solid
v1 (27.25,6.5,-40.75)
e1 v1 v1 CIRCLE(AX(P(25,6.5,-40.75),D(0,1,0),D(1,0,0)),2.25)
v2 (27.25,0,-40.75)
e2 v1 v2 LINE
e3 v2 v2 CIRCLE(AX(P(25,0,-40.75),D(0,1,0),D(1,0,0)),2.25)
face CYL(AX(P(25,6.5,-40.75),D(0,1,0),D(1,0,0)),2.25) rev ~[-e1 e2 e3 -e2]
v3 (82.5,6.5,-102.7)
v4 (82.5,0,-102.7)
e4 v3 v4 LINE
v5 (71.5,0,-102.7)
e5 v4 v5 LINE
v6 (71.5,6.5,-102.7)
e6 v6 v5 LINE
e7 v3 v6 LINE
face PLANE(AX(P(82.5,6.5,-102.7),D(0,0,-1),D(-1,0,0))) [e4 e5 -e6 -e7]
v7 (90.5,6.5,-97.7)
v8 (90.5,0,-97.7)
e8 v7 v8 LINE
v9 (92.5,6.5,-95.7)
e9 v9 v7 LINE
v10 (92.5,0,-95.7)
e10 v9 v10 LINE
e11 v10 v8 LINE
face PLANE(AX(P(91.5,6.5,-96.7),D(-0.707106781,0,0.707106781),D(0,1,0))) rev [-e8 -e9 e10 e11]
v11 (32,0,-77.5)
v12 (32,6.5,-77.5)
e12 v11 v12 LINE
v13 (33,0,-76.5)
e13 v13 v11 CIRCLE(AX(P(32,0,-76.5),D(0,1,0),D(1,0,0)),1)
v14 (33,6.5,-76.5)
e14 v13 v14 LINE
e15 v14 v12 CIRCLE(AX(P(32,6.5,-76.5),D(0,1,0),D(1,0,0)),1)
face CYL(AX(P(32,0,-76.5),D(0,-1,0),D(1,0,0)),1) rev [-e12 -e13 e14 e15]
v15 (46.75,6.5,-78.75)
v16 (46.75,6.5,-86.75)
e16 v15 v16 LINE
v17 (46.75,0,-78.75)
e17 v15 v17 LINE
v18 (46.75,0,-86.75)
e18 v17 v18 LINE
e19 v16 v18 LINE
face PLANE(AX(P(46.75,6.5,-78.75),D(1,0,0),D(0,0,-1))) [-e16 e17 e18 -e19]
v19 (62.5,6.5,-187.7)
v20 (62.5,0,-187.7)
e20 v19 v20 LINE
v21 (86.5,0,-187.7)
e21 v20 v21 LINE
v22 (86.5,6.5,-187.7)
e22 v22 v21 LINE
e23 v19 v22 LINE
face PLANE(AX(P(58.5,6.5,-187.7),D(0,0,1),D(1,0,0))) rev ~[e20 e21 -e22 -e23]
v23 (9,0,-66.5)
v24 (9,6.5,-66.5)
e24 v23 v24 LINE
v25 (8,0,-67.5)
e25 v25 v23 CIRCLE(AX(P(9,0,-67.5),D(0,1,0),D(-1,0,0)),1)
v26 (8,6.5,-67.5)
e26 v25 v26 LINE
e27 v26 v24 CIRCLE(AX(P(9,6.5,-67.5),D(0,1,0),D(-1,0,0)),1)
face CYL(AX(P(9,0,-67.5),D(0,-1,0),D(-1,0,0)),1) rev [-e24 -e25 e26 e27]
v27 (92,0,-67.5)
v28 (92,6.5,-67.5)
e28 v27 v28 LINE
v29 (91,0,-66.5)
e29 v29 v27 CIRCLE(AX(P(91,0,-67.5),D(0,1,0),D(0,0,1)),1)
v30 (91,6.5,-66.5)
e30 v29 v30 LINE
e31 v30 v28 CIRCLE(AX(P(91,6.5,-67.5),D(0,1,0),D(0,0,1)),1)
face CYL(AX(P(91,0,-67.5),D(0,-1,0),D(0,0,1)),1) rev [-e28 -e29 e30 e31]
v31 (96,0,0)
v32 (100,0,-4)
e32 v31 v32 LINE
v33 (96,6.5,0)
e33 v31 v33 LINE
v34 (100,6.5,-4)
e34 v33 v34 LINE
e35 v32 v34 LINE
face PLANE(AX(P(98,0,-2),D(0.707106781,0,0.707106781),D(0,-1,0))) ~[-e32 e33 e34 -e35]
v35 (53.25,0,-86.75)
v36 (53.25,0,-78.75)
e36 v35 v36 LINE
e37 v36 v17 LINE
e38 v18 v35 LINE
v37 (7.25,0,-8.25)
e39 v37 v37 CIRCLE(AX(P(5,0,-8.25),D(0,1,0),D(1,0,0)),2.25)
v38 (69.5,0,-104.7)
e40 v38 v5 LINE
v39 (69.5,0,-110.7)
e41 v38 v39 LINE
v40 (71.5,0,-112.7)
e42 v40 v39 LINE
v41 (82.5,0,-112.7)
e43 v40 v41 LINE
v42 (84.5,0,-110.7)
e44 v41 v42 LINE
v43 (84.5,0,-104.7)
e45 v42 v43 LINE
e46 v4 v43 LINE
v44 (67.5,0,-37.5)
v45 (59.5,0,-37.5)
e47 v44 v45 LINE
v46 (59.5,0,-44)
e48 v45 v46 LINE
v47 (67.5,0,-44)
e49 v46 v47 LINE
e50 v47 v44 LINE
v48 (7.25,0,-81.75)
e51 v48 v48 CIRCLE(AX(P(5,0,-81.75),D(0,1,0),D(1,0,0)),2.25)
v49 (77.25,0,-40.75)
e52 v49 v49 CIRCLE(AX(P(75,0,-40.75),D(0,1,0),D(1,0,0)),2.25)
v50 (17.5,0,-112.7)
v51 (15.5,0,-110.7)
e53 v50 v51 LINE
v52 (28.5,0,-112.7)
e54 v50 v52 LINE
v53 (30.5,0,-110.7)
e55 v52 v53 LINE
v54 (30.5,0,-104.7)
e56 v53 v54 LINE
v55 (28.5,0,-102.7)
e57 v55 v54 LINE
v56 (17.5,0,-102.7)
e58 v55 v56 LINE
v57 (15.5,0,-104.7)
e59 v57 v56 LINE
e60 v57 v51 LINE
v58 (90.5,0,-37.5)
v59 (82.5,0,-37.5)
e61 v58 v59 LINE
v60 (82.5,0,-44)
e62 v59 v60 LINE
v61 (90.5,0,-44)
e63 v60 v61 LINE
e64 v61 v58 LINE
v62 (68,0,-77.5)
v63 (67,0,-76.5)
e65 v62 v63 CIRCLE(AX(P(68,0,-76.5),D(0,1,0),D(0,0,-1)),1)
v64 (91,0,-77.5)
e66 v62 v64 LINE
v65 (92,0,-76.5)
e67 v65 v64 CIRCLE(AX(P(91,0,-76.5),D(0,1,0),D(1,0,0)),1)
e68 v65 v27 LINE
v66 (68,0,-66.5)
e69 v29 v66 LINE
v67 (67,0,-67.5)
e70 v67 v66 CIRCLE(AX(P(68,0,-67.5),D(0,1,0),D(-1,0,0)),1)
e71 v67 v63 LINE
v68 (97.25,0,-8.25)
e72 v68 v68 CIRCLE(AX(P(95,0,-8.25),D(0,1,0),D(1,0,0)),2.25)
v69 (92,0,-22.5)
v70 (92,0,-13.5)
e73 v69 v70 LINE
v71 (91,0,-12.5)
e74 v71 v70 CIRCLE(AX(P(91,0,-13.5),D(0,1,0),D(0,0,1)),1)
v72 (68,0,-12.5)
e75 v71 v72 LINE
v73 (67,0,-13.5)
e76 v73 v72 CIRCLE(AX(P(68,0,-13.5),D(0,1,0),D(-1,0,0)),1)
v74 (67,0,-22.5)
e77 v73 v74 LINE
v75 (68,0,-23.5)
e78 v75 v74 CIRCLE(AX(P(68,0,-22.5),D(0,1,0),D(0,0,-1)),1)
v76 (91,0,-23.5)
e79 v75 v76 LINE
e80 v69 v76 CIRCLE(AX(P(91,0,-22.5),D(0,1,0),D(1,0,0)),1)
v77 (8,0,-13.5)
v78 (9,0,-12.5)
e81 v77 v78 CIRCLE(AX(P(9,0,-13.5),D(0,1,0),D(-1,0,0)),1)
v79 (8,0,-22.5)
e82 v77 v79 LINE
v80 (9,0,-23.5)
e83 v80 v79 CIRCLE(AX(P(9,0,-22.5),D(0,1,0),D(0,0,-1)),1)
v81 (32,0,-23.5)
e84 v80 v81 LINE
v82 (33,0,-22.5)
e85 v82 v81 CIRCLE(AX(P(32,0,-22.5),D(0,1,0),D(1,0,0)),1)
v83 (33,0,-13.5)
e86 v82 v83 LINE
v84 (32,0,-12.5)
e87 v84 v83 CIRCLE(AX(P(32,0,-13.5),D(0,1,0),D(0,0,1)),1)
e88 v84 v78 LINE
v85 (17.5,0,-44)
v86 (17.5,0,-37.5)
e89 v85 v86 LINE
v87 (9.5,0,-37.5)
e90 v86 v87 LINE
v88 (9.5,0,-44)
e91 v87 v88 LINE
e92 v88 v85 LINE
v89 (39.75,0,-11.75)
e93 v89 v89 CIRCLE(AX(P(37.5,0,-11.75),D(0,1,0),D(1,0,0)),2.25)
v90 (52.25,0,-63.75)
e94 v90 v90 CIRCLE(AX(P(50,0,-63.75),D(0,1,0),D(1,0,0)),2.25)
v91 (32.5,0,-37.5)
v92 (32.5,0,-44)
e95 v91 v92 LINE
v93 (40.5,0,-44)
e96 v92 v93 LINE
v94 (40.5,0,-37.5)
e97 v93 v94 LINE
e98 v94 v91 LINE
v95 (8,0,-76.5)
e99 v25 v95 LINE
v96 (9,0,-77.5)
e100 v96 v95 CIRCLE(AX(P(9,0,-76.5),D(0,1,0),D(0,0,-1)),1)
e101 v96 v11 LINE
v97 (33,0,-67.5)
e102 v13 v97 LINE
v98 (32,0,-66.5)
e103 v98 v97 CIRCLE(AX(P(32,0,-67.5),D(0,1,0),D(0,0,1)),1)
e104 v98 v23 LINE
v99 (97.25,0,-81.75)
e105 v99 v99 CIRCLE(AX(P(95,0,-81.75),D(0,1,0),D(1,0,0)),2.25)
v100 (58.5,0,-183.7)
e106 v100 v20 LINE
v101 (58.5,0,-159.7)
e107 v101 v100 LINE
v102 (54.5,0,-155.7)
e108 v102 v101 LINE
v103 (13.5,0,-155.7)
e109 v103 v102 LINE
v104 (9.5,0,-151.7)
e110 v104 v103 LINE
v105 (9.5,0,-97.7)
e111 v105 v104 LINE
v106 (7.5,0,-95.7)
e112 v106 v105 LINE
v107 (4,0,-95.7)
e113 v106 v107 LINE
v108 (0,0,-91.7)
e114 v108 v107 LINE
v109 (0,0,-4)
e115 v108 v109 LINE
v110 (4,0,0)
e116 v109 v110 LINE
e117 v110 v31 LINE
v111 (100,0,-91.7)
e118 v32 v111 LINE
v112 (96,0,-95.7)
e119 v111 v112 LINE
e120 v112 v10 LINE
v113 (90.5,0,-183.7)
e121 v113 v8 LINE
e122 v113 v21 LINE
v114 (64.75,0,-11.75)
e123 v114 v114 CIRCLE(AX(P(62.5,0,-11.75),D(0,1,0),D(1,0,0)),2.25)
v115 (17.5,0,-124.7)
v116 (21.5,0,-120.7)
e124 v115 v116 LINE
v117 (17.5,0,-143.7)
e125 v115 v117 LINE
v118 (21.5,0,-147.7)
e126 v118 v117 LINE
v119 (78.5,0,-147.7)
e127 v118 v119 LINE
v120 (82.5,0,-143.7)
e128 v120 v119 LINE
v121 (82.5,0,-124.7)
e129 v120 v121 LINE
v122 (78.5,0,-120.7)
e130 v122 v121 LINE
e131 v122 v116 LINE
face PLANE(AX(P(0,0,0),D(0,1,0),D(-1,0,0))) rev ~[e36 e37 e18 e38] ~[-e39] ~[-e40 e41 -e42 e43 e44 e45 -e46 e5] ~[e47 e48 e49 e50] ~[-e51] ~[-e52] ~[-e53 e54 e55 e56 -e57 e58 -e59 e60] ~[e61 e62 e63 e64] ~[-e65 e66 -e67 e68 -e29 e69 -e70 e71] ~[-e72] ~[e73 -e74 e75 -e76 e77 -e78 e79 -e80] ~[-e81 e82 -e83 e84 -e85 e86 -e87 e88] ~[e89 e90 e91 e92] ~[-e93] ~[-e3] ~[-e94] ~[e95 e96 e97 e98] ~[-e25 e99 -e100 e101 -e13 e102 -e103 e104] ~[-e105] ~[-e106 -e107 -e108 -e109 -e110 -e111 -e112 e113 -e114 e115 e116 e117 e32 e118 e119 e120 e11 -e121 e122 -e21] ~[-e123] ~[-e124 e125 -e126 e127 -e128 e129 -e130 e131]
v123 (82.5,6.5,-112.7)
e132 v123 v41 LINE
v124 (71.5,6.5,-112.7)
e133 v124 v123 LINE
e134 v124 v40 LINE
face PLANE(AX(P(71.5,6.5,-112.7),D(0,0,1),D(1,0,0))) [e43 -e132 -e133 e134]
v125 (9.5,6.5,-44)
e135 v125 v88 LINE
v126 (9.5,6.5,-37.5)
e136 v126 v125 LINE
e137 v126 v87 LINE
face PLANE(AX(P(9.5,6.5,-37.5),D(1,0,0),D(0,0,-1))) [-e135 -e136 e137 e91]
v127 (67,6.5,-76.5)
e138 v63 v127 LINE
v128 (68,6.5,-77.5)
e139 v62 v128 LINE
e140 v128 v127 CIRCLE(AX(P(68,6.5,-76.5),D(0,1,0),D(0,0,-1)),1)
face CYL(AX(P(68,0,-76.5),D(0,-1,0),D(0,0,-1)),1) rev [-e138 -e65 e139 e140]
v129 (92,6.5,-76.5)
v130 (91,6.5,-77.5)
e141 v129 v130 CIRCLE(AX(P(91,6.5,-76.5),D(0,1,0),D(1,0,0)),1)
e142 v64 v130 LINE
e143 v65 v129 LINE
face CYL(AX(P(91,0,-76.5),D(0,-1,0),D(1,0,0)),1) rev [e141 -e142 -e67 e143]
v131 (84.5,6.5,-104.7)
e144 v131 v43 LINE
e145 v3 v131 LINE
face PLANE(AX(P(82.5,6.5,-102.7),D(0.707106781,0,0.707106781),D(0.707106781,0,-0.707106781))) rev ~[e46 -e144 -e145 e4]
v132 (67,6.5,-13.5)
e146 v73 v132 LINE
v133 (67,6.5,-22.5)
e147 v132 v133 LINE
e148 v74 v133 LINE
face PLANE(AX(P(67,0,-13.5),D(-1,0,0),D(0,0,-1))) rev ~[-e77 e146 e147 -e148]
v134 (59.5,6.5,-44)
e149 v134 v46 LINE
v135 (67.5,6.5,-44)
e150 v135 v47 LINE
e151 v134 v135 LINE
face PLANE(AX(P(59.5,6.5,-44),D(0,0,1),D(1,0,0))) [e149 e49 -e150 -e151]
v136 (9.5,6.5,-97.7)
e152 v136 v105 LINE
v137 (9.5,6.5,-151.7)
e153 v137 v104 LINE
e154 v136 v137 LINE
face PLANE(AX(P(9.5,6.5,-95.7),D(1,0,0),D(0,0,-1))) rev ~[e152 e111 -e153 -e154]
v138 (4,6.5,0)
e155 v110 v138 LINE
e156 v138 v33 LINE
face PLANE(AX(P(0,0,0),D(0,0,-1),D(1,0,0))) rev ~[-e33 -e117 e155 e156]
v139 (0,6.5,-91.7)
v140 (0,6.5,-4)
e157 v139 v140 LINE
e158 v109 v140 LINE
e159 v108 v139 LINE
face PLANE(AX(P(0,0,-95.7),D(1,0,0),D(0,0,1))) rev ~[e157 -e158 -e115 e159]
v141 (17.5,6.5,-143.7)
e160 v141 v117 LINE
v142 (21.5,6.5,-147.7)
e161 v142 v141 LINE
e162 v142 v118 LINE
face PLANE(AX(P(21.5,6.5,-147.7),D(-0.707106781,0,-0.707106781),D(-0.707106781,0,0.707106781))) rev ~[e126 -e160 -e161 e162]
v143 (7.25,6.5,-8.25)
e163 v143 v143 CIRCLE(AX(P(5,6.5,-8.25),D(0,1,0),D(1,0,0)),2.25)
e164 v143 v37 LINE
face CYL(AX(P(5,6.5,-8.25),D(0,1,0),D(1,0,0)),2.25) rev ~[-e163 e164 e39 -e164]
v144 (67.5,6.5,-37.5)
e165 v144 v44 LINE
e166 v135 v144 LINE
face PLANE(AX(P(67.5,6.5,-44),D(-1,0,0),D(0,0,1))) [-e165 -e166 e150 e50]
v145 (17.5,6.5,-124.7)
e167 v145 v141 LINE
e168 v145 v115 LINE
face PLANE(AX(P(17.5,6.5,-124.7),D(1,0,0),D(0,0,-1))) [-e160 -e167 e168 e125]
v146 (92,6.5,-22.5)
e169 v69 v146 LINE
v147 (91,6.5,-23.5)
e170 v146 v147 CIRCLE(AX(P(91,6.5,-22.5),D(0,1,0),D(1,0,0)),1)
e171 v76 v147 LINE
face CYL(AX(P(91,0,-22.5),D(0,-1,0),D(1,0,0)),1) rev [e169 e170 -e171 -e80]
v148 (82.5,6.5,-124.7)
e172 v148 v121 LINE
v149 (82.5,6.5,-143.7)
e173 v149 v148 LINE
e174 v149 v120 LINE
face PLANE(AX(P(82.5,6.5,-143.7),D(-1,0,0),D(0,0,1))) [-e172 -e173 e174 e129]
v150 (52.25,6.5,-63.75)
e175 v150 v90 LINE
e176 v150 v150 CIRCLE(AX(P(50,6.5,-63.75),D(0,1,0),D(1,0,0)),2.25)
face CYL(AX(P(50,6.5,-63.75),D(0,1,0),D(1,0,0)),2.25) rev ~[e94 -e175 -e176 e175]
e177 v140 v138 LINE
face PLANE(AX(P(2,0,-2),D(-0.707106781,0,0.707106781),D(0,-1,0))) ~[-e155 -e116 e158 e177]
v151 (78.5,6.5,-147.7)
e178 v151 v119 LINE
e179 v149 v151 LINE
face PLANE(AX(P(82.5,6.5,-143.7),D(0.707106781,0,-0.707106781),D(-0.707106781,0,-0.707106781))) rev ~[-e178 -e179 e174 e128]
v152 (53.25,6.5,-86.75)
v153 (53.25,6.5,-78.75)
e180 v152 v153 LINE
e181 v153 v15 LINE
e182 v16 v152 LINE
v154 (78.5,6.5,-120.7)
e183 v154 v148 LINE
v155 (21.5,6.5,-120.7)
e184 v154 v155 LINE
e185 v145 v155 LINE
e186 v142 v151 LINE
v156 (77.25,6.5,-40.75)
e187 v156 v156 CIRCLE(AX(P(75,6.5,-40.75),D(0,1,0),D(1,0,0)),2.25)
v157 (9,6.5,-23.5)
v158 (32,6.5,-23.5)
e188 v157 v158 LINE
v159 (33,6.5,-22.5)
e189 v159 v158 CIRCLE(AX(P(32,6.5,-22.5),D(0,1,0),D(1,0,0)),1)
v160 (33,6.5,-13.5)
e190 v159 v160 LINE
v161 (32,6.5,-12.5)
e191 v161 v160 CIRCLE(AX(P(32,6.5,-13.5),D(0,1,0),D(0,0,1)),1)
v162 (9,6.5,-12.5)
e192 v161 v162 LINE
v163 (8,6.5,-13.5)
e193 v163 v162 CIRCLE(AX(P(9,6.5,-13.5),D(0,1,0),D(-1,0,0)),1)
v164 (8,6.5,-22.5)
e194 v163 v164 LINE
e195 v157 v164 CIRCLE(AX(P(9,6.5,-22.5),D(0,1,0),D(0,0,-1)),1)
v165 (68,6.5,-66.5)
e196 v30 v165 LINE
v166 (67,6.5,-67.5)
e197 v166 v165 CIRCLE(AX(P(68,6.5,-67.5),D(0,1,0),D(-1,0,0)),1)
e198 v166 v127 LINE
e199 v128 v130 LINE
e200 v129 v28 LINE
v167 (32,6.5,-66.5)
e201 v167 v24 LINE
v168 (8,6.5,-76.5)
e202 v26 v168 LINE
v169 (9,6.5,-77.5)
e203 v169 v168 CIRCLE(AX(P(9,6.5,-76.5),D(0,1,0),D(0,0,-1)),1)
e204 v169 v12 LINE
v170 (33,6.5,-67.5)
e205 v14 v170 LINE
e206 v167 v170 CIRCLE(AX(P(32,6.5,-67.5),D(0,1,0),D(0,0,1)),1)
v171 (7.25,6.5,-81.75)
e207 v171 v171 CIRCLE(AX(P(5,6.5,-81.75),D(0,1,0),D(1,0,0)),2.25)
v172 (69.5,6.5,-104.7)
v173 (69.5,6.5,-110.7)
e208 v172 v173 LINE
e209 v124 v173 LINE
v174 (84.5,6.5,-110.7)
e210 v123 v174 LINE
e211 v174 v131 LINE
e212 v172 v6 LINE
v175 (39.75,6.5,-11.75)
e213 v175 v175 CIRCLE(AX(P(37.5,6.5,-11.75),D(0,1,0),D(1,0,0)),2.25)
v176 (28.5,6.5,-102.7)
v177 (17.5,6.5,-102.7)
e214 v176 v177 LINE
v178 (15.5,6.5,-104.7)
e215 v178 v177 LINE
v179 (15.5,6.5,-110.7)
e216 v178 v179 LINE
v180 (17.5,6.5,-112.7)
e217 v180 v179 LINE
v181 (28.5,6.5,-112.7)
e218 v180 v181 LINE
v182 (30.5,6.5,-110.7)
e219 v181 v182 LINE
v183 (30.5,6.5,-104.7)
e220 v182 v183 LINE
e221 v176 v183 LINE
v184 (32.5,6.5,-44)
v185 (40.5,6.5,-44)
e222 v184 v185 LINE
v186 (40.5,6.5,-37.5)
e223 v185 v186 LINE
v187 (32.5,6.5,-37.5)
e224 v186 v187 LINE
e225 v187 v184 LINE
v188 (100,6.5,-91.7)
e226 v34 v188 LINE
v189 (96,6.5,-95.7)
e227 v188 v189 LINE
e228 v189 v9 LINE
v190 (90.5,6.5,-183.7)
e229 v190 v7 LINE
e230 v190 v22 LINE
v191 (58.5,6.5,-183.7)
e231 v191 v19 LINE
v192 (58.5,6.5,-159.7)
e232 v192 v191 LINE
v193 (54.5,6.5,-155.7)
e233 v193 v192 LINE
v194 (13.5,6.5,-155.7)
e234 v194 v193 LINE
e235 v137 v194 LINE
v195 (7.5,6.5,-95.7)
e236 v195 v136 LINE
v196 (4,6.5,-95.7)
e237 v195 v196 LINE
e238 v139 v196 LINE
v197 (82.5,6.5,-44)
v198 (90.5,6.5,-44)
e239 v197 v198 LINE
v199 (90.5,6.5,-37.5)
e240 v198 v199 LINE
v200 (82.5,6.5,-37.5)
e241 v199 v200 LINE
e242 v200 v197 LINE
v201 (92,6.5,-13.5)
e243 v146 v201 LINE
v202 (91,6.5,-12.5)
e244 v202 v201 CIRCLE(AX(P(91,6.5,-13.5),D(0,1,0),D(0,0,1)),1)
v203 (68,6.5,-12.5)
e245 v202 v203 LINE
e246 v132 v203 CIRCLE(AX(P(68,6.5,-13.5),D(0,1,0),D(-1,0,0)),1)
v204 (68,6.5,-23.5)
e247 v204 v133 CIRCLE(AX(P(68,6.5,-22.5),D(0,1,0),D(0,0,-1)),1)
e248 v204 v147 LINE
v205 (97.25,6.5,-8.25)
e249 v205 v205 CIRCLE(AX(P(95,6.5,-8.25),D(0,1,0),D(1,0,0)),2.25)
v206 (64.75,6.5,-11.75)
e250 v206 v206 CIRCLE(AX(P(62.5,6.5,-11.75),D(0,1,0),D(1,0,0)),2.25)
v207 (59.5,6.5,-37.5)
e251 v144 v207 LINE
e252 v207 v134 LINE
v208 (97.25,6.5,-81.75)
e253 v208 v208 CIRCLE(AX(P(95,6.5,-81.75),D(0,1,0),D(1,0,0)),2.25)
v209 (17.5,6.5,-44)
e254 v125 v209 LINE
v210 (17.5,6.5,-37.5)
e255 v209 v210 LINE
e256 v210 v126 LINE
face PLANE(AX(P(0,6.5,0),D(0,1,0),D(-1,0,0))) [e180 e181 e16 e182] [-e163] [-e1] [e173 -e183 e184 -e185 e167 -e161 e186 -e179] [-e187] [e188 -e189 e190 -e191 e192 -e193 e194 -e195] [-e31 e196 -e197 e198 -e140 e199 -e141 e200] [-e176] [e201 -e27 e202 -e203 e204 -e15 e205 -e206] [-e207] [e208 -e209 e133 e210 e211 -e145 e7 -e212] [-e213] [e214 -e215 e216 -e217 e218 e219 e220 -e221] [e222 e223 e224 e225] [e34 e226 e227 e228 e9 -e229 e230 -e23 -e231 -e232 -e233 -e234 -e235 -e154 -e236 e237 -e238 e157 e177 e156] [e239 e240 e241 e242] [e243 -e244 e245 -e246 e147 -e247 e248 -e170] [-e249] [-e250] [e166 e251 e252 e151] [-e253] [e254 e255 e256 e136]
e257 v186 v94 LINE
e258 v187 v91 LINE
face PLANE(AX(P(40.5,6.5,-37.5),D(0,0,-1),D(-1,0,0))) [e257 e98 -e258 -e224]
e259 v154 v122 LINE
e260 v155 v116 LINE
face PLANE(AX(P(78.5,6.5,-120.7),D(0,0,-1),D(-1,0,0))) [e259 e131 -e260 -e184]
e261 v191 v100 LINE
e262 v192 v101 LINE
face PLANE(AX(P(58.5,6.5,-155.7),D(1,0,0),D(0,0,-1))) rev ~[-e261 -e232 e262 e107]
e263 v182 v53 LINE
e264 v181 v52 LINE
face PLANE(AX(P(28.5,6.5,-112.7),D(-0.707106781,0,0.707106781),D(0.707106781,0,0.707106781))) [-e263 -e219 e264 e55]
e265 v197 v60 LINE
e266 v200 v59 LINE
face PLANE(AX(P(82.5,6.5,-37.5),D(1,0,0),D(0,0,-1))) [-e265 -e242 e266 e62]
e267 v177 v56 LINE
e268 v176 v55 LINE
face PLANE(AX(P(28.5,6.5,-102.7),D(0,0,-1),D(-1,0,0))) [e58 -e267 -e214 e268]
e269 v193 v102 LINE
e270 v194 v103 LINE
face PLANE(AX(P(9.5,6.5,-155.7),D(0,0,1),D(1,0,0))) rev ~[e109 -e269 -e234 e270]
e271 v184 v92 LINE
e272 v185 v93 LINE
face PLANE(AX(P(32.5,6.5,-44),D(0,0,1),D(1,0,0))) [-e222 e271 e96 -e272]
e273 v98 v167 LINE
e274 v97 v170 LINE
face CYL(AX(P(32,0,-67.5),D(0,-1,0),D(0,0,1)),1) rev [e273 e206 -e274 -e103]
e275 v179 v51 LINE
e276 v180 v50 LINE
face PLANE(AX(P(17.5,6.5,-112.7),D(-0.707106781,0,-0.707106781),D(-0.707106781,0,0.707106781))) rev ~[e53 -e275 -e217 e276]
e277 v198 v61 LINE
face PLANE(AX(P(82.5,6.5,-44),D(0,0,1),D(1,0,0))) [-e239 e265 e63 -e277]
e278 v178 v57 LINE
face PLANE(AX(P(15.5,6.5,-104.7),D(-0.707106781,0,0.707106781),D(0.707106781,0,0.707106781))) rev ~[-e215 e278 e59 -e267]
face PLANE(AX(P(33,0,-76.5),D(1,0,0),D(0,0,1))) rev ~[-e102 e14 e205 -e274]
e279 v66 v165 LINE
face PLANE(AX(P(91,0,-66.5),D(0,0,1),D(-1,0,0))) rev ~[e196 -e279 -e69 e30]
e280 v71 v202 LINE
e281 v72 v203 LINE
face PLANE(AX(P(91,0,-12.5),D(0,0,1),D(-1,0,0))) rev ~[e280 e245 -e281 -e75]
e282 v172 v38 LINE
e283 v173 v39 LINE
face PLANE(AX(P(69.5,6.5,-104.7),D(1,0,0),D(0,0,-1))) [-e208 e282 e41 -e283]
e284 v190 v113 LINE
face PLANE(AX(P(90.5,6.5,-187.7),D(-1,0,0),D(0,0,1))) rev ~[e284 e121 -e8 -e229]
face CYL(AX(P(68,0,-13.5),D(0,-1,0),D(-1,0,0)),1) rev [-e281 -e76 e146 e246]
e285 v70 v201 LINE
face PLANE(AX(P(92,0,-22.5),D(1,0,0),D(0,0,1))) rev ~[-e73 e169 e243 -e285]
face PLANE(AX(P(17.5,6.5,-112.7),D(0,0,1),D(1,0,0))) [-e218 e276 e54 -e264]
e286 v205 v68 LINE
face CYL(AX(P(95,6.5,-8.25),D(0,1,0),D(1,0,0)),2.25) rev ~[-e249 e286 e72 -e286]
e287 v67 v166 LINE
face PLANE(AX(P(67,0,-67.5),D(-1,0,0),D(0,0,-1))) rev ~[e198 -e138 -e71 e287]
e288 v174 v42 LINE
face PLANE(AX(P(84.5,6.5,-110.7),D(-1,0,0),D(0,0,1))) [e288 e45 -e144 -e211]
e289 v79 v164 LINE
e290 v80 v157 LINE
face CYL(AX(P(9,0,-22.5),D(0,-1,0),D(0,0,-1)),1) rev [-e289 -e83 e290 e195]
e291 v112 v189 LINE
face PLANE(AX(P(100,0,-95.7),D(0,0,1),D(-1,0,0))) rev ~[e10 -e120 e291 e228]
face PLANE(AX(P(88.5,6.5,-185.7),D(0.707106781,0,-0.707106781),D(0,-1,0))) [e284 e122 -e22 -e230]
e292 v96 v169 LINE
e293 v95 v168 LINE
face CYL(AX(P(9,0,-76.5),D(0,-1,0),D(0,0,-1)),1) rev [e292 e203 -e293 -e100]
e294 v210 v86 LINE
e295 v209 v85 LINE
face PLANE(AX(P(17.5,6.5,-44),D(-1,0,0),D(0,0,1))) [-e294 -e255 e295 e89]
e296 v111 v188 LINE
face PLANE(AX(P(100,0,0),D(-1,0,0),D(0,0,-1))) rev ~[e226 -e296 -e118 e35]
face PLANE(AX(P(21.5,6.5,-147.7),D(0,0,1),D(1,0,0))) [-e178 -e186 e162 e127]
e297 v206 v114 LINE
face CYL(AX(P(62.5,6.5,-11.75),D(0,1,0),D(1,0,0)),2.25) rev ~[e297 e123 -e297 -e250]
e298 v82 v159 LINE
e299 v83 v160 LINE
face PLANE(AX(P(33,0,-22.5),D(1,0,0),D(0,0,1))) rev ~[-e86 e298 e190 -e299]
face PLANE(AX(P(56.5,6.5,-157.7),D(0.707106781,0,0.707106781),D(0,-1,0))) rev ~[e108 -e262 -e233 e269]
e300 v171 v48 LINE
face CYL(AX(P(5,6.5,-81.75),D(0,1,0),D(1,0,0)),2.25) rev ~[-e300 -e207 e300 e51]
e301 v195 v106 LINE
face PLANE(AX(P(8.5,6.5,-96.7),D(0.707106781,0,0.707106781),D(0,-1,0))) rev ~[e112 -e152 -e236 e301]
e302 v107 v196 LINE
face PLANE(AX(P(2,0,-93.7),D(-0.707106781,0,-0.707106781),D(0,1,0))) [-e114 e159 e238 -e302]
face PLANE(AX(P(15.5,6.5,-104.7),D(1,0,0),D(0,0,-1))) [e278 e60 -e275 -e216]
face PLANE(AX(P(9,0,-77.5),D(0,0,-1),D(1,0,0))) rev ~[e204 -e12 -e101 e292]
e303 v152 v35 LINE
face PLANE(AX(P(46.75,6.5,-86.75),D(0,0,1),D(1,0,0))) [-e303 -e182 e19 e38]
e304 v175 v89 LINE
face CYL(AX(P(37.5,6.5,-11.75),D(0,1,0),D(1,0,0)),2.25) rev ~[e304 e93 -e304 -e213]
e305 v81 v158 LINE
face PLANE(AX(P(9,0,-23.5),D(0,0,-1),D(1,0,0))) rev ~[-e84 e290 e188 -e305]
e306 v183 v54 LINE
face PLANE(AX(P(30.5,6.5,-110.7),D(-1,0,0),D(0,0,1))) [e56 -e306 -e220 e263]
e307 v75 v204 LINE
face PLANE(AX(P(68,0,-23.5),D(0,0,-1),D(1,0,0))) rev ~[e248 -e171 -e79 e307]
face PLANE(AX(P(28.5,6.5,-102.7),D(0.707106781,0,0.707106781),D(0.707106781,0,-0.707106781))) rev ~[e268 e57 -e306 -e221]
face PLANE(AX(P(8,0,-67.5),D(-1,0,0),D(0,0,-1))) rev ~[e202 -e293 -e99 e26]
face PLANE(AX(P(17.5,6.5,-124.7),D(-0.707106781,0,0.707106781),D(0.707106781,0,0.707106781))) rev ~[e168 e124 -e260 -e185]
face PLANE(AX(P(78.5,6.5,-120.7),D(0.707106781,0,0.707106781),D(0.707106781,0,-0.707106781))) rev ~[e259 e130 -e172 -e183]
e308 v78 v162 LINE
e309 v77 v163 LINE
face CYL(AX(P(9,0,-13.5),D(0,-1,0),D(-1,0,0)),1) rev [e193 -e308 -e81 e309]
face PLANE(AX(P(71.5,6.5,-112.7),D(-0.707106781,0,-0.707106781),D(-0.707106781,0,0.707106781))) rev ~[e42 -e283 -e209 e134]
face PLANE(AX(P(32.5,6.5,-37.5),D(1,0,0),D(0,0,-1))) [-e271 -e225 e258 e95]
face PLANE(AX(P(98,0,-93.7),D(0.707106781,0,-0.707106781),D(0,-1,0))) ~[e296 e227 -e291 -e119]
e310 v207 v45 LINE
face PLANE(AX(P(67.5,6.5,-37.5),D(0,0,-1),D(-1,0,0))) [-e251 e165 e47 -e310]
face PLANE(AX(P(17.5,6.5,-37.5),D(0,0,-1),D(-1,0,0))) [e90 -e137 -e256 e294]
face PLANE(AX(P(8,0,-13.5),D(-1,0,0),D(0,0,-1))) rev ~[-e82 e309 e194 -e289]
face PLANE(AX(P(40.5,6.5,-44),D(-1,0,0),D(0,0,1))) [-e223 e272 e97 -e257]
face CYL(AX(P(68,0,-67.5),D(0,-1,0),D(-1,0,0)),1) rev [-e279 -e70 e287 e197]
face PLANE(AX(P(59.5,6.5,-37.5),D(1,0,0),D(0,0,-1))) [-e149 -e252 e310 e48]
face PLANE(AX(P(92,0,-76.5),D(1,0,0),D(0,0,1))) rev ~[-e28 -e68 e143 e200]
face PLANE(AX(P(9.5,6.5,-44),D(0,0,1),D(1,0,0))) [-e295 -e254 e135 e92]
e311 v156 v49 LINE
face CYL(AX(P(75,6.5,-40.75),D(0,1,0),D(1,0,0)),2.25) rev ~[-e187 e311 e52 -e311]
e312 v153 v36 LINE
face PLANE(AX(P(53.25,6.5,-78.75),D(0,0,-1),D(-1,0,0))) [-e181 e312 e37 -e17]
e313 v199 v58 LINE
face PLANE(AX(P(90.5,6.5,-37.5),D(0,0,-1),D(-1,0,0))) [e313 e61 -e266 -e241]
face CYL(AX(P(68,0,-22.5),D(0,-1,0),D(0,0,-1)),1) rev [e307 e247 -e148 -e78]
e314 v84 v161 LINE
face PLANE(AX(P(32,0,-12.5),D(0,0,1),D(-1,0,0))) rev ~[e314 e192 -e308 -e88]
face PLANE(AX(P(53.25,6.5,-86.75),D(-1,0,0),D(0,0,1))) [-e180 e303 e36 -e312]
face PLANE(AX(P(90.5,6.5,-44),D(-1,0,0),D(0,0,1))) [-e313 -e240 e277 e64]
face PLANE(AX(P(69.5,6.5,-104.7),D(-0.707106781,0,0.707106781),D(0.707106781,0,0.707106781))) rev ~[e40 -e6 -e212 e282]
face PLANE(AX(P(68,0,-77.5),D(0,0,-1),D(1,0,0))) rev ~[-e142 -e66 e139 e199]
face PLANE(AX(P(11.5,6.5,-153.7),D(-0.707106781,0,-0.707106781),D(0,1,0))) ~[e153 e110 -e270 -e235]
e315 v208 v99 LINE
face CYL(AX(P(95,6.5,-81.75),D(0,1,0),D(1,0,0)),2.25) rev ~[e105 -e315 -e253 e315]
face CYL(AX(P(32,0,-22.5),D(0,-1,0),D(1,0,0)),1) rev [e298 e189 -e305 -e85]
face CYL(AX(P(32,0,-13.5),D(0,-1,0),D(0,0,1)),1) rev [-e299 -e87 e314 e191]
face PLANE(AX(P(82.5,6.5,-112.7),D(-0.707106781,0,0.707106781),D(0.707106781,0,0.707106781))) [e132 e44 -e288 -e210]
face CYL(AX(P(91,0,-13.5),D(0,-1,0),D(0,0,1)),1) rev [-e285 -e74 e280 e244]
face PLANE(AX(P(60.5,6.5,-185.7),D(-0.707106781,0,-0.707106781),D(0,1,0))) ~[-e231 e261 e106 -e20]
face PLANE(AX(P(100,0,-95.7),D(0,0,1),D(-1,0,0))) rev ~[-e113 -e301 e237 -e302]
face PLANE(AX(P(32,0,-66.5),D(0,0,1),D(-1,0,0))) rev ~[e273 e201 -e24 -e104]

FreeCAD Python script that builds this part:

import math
import FreeCAD as App
import Part
import Sketcher

V = App.Vector


def edges_at(feature, points):
    """Names of the edges that pass closest to the given points."""
    edges = feature.Shape.Edges
    near = lambda p: min(range(len(edges)), key=lambda i: edges[i].distToShape(Part.Vertex(*p))[0])
    return sorted({f"Edge{near(p) + 1}" for p in points})


def add_polygon(sketch, points):
    """Adds a closed chain of lines whose ends are joined by coincident constraints."""
    first, n = sketch.GeometryCount, len(points)
    for a, b in zip(points, points[1:] + points[:1]):
        sketch.addGeometry(Part.LineSegment(App.Vector(*a, 0), App.Vector(*b, 0)), False)
    for i in range(n):
        sketch.addConstraint(Sketcher.Constraint("Coincident", first + i, 2, first + (i + 1) % n, 1))

doc = App.newDocument("Part")
params = doc.addObject("Spreadsheet::Sheet", "Params")
for row, (alias, value) in enumerate([
    ("sketch1_radius", "1 mm"),
    ("sketch1_width", "100 mm"),
    ("sketch1_height", "95.7 mm"),
    ("sketch1_width2", "23 mm"),
    ("pad1_length", "6.5 mm"),
    ("sketch2_diameter", "4.5 mm"),
    ("sketch2_width", "8 mm"),
    ("sketch2_height", "6.5 mm"),
    ("sketch3_width", "32 mm"),
    ("sketch3_height", "92 mm"),
    ("sketch3_width2", "81 mm"),
    ("pad2_length", "6.5 mm"),
    ("sketch4_height", "6 mm"),
    ("sketch5_width", "57 mm"),
    ("sketch5_height", "19 mm"),
    ("chamfer_size", "4 mm"),
    ("chamfer2_size", "2 mm"),
    ("sketch6_diameter", "4.5 mm"),
    ("sketch7_diameter", "4.5 mm"),
    ("sketch8_diameter", "4.5 mm"),
    ("sketch8_height", "8 mm"),
    ("sketch8_width", "6.5 mm"),
], start=1):
    params.set(f"A{row}", alias)
    params.set(f"B{row}", "=" + value)
    params.setAlias(f"B{row}", alias)

body = doc.addObject("PartDesign::Body", "Body")

sketch1 = doc.addObject("Sketcher::SketchObject", "Sketch")
body.addObject(sketch1)
sketch1.AttachmentSupport = (doc.XZ_Plane, [""])
sketch1.MapMode = "FlatFace"
add_polygon(sketch1, [(0, -95.7), (0, 0), (100, 0), (100, -95.7)])
sketch1.addGeometry(Part.ArcOfCircle(Part.Circle(V(68, -76.5, 0), V(0, 0, 1), 1), math.radians(180), math.radians(270)), False)
sketch1.addGeometry(Part.LineSegment(V(68, -77.5, 0), V(91, -77.5, 0)), False)
sketch1.addGeometry(Part.ArcOfCircle(Part.Circle(V(91, -76.5, 0), V(0, 0, 1), 1), math.radians(-90), math.radians(0)), False)
sketch1.addGeometry(Part.LineSegment(V(92, -76.5, 0), V(92, -67.5, 0)), False)
sketch1.addGeometry(Part.ArcOfCircle(Part.Circle(V(91, -67.5, 0), V(0, 0, 1), 1), math.radians(0), math.radians(90)), False)
sketch1.addGeometry(Part.LineSegment(V(91, -66.5, 0), V(68, -66.5, 0)), False)
sketch1.addGeometry(Part.ArcOfCircle(Part.Circle(V(68, -67.5, 0), V(0, 0, 1), 1), math.radians(90), math.radians(180)), False)
sketch1.addGeometry(Part.LineSegment(V(67, -67.5, 0), V(67, -76.5, 0)), False)
sketch1.addGeometry(Part.ArcOfCircle(Part.Circle(V(9, -76.5, 0), V(0, 0, 1), 1), math.radians(180), math.radians(270)), False)
sketch1.addGeometry(Part.LineSegment(V(9, -77.5, 0), V(32, -77.5, 0)), False)
sketch1.addGeometry(Part.ArcOfCircle(Part.Circle(V(32, -76.5, 0), V(0, 0, 1), 1), math.radians(-90), math.radians(0)), False)
sketch1.addGeometry(Part.LineSegment(V(33, -76.5, 0), V(33, -67.5, 0)), False)
sketch1.addGeometry(Part.ArcOfCircle(Part.Circle(V(32, -67.5, 0), V(0, 0, 1), 1), math.radians(0), math.radians(90)), False)
sketch1.addGeometry(Part.LineSegment(V(32, -66.5, 0), V(9, -66.5, 0)), False)
sketch1.addGeometry(Part.ArcOfCircle(Part.Circle(V(9, -67.5, 0), V(0, 0, 1), 1), math.radians(90), math.radians(180)), False)
sketch1.addGeometry(Part.LineSegment(V(8, -67.5, 0), V(8, -76.5, 0)), False)
sketch1.addGeometry(Part.ArcOfCircle(Part.Circle(V(68, -22.5, 0), V(0, 0, 1), 1), math.radians(180), math.radians(270)), False)
sketch1.addGeometry(Part.LineSegment(V(68, -23.5, 0), V(91, -23.5, 0)), False)
sketch1.addGeometry(Part.ArcOfCircle(Part.Circle(V(91, -22.5, 0), V(0, 0, 1), 1), math.radians(-90), math.radians(0)), False)
sketch1.addGeometry(Part.LineSegment(V(92, -22.5, 0), V(92, -13.5, 0)), False)
sketch1.addGeometry(Part.ArcOfCircle(Part.Circle(V(91, -13.5, 0), V(0, 0, 1), 1), math.radians(0), math.radians(90)), False)
sketch1.addGeometry(Part.LineSegment(V(91, -12.5, 0), V(68, -12.5, 0)), False)
sketch1.addGeometry(Part.ArcOfCircle(Part.Circle(V(68, -13.5, 0), V(0, 0, 1), 1), math.radians(90), math.radians(180)), False)
sketch1.addGeometry(Part.LineSegment(V(67, -13.5, 0), V(67, -22.5, 0)), False)
sketch1.addGeometry(Part.ArcOfCircle(Part.Circle(V(9, -22.5, 0), V(0, 0, 1), 1), math.radians(180), math.radians(270)), False)
sketch1.addGeometry(Part.LineSegment(V(9, -23.5, 0), V(32, -23.5, 0)), False)
sketch1.addGeometry(Part.ArcOfCircle(Part.Circle(V(32, -22.5, 0), V(0, 0, 1), 1), math.radians(-90), math.radians(0)), False)
sketch1.addGeometry(Part.LineSegment(V(33, -22.5, 0), V(33, -13.5, 0)), False)
sketch1.addGeometry(Part.ArcOfCircle(Part.Circle(V(32, -13.5, 0), V(0, 0, 1), 1), math.radians(0), math.radians(90)), False)
sketch1.addGeometry(Part.LineSegment(V(32, -12.5, 0), V(9, -12.5, 0)), False)
sketch1.addGeometry(Part.ArcOfCircle(Part.Circle(V(9, -13.5, 0), V(0, 0, 1), 1), math.radians(90), math.radians(180)), False)
sketch1.addGeometry(Part.LineSegment(V(8, -13.5, 0), V(8, -22.5, 0)), False)
sketch1.addConstraint([
    Sketcher.Constraint("Tangent", 4, 2, 5, 1),
    Sketcher.Constraint("Tangent", 5, 2, 6, 1),
    Sketcher.Constraint("Tangent", 6, 2, 7, 1),
    Sketcher.Constraint("Tangent", 7, 2, 8, 1),
    Sketcher.Constraint("Tangent", 8, 2, 9, 1),
    Sketcher.Constraint("Tangent", 9, 2, 10, 1),
    Sketcher.Constraint("Tangent", 10, 2, 11, 1),
    Sketcher.Constraint("Tangent", 11, 2, 4, 1),
    Sketcher.Constraint("Tangent", 12, 2, 13, 1),
    Sketcher.Constraint("Tangent", 13, 2, 14, 1),
    Sketcher.Constraint("Tangent", 14, 2, 15, 1),
    Sketcher.Constraint("Tangent", 15, 2, 16, 1),
    Sketcher.Constraint("Tangent", 16, 2, 17, 1),
    Sketcher.Constraint("Tangent", 17, 2, 18, 1),
    Sketcher.Constraint("Tangent", 18, 2, 19, 1),
    Sketcher.Constraint("Tangent", 19, 2, 12, 1),
    Sketcher.Constraint("Tangent", 20, 2, 21, 1),
    Sketcher.Constraint("Tangent", 21, 2, 22, 1),
    Sketcher.Constraint("Tangent", 22, 2, 23, 1),
    Sketcher.Constraint("Tangent", 23, 2, 24, 1),
    Sketcher.Constraint("Tangent", 24, 2, 25, 1),
    Sketcher.Constraint("Tangent", 25, 2, 26, 1),
    Sketcher.Constraint("Tangent", 26, 2, 27, 1),
    Sketcher.Constraint("Tangent", 27, 2, 20, 1),
    Sketcher.Constraint("Tangent", 28, 2, 29, 1),
    Sketcher.Constraint("Tangent", 29, 2, 30, 1),
    Sketcher.Constraint("Tangent", 30, 2, 31, 1),
    Sketcher.Constraint("Tangent", 31, 2, 32, 1),
    Sketcher.Constraint("Tangent", 32, 2, 33, 1),
    Sketcher.Constraint("Tangent", 33, 2, 34, 1),
    Sketcher.Constraint("Tangent", 34, 2, 35, 1),
    Sketcher.Constraint("Tangent", 35, 2, 28, 1),
    Sketcher.Constraint("Vertical", 0),
    Sketcher.Constraint("Horizontal", 1),
    Sketcher.Constraint("Vertical", 2),
    Sketcher.Constraint("Horizontal", 3),
    Sketcher.Constraint("Horizontal", 5),
    Sketcher.Constraint("Vertical", 7),
    Sketcher.Constraint("Horizontal", 9),
    Sketcher.Constraint("Vertical", 11),
    Sketcher.Constraint("Horizontal", 13),
    Sketcher.Constraint("Vertical", 15),
    Sketcher.Constraint("Horizontal", 17),
    Sketcher.Constraint("Vertical", 19),
    Sketcher.Constraint("Horizontal", 21),
    Sketcher.Constraint("Vertical", 23),
    Sketcher.Constraint("Horizontal", 25),
    Sketcher.Constraint("Vertical", 27),
    Sketcher.Constraint("Horizontal", 29),
    Sketcher.Constraint("Vertical", 31),
    Sketcher.Constraint("Horizontal", 33),
    Sketcher.Constraint("Vertical", 35),
    Sketcher.Constraint("Coincident", 0, 2, -1, 1),
    Sketcher.Constraint("Equal", 4, 6),
    Sketcher.Constraint("Equal", 6, 8),
    Sketcher.Constraint("Equal", 8, 10),
    Sketcher.Constraint("Equal", 10, 12),
    Sketcher.Constraint("Equal", 12, 14),
    Sketcher.Constraint("Equal", 14, 16),
    Sketcher.Constraint("Equal", 16, 18),
    Sketcher.Constraint("Equal", 18, 20),
    Sketcher.Constraint("Equal", 20, 22),
    Sketcher.Constraint("Equal", 22, 24),
    Sketcher.Constraint("Equal", 24, 26),
    Sketcher.Constraint("Equal", 26, 28),
    Sketcher.Constraint("Equal", 28, 30),
    Sketcher.Constraint("Equal", 30, 32),
    Sketcher.Constraint("Equal", 32, 34),
    Sketcher.Constraint("Horizontal", 6, 3, 12, 3),
    Sketcher.Constraint("Horizontal", 10, 3, 16, 3),
    Sketcher.Constraint("Horizontal", 22, 3, 28, 3),
    Sketcher.Constraint("Horizontal", 26, 3, 32, 3),
    Sketcher.Constraint("Vertical", 10, 3, 20, 3),
    Sketcher.Constraint("Vertical", 8, 3, 22, 3),
    Sketcher.Constraint("Vertical", 18, 3, 28, 3),
    Sketcher.Constraint("Vertical", 16, 3, 30, 3),
    Sketcher.Constraint("Equal", 9, 13),
    Sketcher.Constraint("Equal", 19, 23),
    Sketcher.Constraint("Radius", 4, 1.0),
    Sketcher.Constraint("DistanceX", 1, 1, 1, 2, 100.0),
    Sketcher.Constraint("DistanceY", 0, 1, 0, 2, 95.7),
    Sketcher.Constraint("DistanceX", -1, 1, 18, 2, 8.0),
    Sketcher.Constraint("DistanceY", 4, 3, 20, 3, 54.0),
    Sketcher.Constraint("DistanceX", 6, 2, 2, 2, 8.0),
    Sketcher.Constraint("DistanceY", 5, 2, 8, 2, 11.0),
    Sketcher.Constraint("DistanceX", 5, 1, 5, 2, 23.0),
    Sketcher.Constraint("DistanceY", 4, 3, -1, 1, 76.5),
])
sketch1.setExpression("Constraints[82]", "Params.sketch1_radius")
sketch1.setExpression("Constraints[83]", "Params.sketch1_width")
sketch1.setExpression("Constraints[84]", "Params.sketch1_height")
sketch1.setExpression("Constraints[89]", "Params.sketch1_width2")
pad1 = doc.addObject("PartDesign::Pad", "Pad")
body.addObject(pad1)
pad1.Profile = sketch1
pad1.setExpression("Length", "Params.pad1_length")
pad1.Reversed = True

sketch2 = doc.addObject("Sketcher::SketchObject", "Sketch001")
body.addObject(sketch2)
sketch2.AttachmentSupport = (doc.XZ_Plane, [""])
sketch2.MapMode = "FlatFace"
sketch2.AttachmentOffset = App.Placement(V(0, 0, -6.5), App.Rotation())
add_polygon(sketch2, [(17.5, -44), (9.5, -44), (9.5, -37.5), (17.5, -37.5)])
add_polygon(sketch2, [(40.5, -44), (32.5, -44), (32.5, -37.5), (40.5, -37.5)])
add_polygon(sketch2, [(67.5, -44), (59.5, -44), (59.5, -37.5), (67.5, -37.5)])
add_polygon(sketch2, [(90.5, -44), (82.5, -44), (82.5, -37.5), (90.5, -37.5)])
sketch2.addGeometry(Part.Circle(V(25, -40.8, 0), V(0, 0, 1), 2.2), False)
sketch2.addGeometry(Part.Circle(V(75, -40.8, 0), V(0, 0, 1), 2.2), False)
sketch2.addConstraint([
    Sketcher.Constraint("Horizontal", 0),
    Sketcher.Constraint("Vertical", 1),
    Sketcher.Constraint("Horizontal", 2),
    Sketcher.Constraint("Vertical", 3),
    Sketcher.Constraint("Horizontal", 4),
    Sketcher.Constraint("Vertical", 5),
    Sketcher.Constraint("Horizontal", 6),
    Sketcher.Constraint("Vertical", 7),
    Sketcher.Constraint("Horizontal", 8),
    Sketcher.Constraint("Vertical", 9),
    Sketcher.Constraint("Horizontal", 10),
    Sketcher.Constraint("Vertical", 11),
    Sketcher.Constraint("Horizontal", 12),
    Sketcher.Constraint("Vertical", 13),
    Sketcher.Constraint("Horizontal", 14),
    Sketcher.Constraint("Vertical", 15),
    Sketcher.Constraint("Equal", 16, 17),
    Sketcher.Constraint("Horizontal", 16, 3, 17, 3),
    Sketcher.Constraint("Horizontal", 3, 2, 4, 2),
    Sketcher.Constraint("Horizontal", 2, 2, 5, 2),
    Sketcher.Constraint("Horizontal", 7, 2, 8, 2),
    Sketcher.Constraint("Horizontal", 6, 2, 9, 2),
    Sketcher.Constraint("Horizontal", 11, 2, 12, 2),
    Sketcher.Constraint("Horizontal", 10, 2, 13, 2),
    Sketcher.Constraint("Equal", 2, 4),
    Sketcher.Constraint("Equal", 6, 8),
    Sketcher.Constraint("Equal", 10, 12),
    Sketcher.Constraint("Diameter", 16, 4.5),
    Sketcher.Constraint("DistanceX", 0, 2, 0, 1, 8.0),
    Sketcher.Constraint("DistanceY", 1, 1, 1, 2, 6.5),
    Sketcher.Constraint("DistanceX", 16, 3, 17, 3, 50.0),
    Sketcher.Constraint("DistanceX", 3, 2, 4, 2, 15.0),
    Sketcher.Constraint("DistanceX", 11, 2, 12, 2, 15.0),
    Sketcher.Constraint("DistanceY", 1, 2, -1, 1, 37.5),
    Sketcher.Constraint("DistanceX", -1, 1, 16, 3, 25.0),
    Sketcher.Constraint("DistanceX", 7, 2, 8, 2, 19.0),
    Sketcher.Constraint("DistanceX", -1, 1, 0, 2, 9.5),
    Sketcher.Constraint("DistanceY", 16, 3, -1, 1, 40.75),
])
sketch2.setExpression("Constraints[43]", "Params.sketch2_diameter")
sketch2.setExpression("Constraints[44]", "Params.sketch2_width")
sketch2.setExpression("Constraints[45]", "Params.sketch2_height")
pocket1 = doc.addObject("PartDesign::Pocket", "Pocket")
body.addObject(pocket1)
pocket1.Profile = sketch2
pocket1.Type = "ThroughAll"
pocket1.Reversed = True

sketch3 = doc.addObject("Sketcher::SketchObject", "Sketch002")
body.addObject(sketch3)
sketch3.AttachmentSupport = (doc.XZ_Plane, [""])
sketch3.MapMode = "FlatFace"
sketch3.AttachmentOffset = App.Placement(V(0, 0, -6.5), App.Rotation())
add_polygon(sketch3, [(10, -96), (90, -96), (90, -188), (58, -188), (58, -156), (10, -156)])
sketch3.addConstraint([
    Sketcher.Constraint("Horizontal", 0),
    Sketcher.Constraint("Vertical", 1),
    Sketcher.Constraint("Horizontal", 2),
    Sketcher.Constraint("Vertical", 3),
    Sketcher.Constraint("Horizontal", 4),
    Sketcher.Constraint("Vertical", 5),
    Sketcher.Constraint("Equal", 2, 3),
    Sketcher.Constraint("DistanceX", 2, 2, 2, 1, 32.0),
    Sketcher.Constraint("DistanceY", 1, 2, 1, 1, 92.0),
    Sketcher.Constraint("DistanceX", -1, 1, 4, 2, 9.5),
    Sketcher.Constraint("DistanceX", 0, 1, 0, 2, 81.0),
    Sketcher.Constraint("DistanceY", 0, 2, -1, 1, 95.7),
])
sketch3.setExpression("Constraints[13]", "Params.sketch3_width")
sketch3.setExpression("Constraints[14]", "Params.sketch3_height")
sketch3.setExpression("Constraints[16]", "Params.sketch3_width2")
pad2 = doc.addObject("PartDesign::Pad", "Pad001")
body.addObject(pad2)
pad2.Profile = sketch3
pad2.setExpression("Length", "Params.pad2_length")

sketch4 = doc.addObject("Sketcher::SketchObject", "Sketch003")
body.addObject(sketch4)
sketch4.AttachmentSupport = (doc.XZ_Plane, [""])
sketch4.MapMode = "FlatFace"
sketch4.AttachmentOffset = App.Placement(V(0, 0, -6.5), App.Rotation())
add_polygon(sketch4, [(28.5, -112.7), (17.5, -112.7), (15.5, -110.7), (15.5, -104.7), (17.5, -102.7), (28.5, -102.7), (30.5, -104.7), (30.5, -110.7)])
add_polygon(sketch4, [(82.5, -112.7), (71.5, -112.7), (69.5, -110.7), (69.5, -104.7), (71.5, -102.7), (82.5, -102.7), (84.5, -104.7), (84.5, -110.7)])
sketch4.addConstraint([
    Sketcher.Constraint("Horizontal", 0),
    Sketcher.Constraint("Vertical", 2),
    Sketcher.Constraint("Horizontal", 4),
    Sketcher.Constraint("Vertical", 6),
    Sketcher.Constraint("Horizontal", 8),
    Sketcher.Constraint("Vertical", 10),
    Sketcher.Constraint("Horizontal", 12),
    Sketcher.Constraint("Vertical", 14),
    Sketcher.Constraint("Perpendicular", 1, 3),
    Sketcher.Constraint("Perpendicular", 3, 5),
    Sketcher.Constraint("Perpendicular", 5, 7),
    Sketcher.Constraint("Perpendicular", 7, 9),
    Sketcher.Constraint("Perpendicular", 9, 11),
    Sketcher.Constraint("Perpendicular", 11, 13),
    Sketcher.Constraint("Perpendicular", 13, 15),
    Sketcher.Constraint("Horizontal", 2, 2, 5, 2),
    Sketcher.Constraint("Horizontal", 1, 2, 6, 2),
    Sketcher.Constraint("Horizontal", 7, 2, 8, 2),
    Sketcher.Constraint("Horizontal", 6, 2, 9, 2),
    Sketcher.Constraint("Horizontal", 5, 2, 10, 2),
    Sketcher.Constraint("Horizontal", 4, 2, 11, 2),
    Sketcher.Constraint("Horizontal", 10, 2, 13, 2),
    Sketcher.Constraint("Horizontal", 9, 2, 14, 2),
    Sketcher.Constraint("Vertical", 0, 2, 3, 2),
    Sketcher.Constraint("Vertical", 4, 2, 7, 2),
    Sketcher.Constraint("Equal", 4, 8),
    Sketcher.Constraint("DistanceY", 2, 1, 2, 2, 6.0),
    Sketcher.Constraint("DistanceX", 1, 2, 0, 2, 2.0),
    Sketcher.Constraint("DistanceX", 2, 2, 5, 2, 15.0),
    Sketcher.Constraint("DistanceX", 6, 2, 8, 2, 41.0),
    Sketcher.Constraint("DistanceX", -1, 1, 0, 2, 17.5),
    Sketcher.Constraint("DistanceY", 0, 2, -1, 1, 112.7),
])
sketch4.setExpression("Constraints[42]", "Params.sketch4_height")
pocket2 = doc.addObject("PartDesign::Pocket", "Pocket001")
body.addObject(pocket2)
pocket2.Profile = sketch4
pocket2.Type = "ThroughAll"
pocket2.Reversed = True

sketch5 = doc.addObject("Sketcher::SketchObject", "Sketch004")
body.addObject(sketch5)
sketch5.AttachmentSupport = (doc.XZ_Plane, [""])
sketch5.MapMode = "FlatFace"
sketch5.AttachmentOffset = App.Placement(V(0, 0, -6.5), App.Rotation())
add_polygon(sketch5, [(78, -148), (22, -148), (18, -144), (18, -125), (22, -121), (78, -121), (82, -125), (82, -144)])
sketch5.addConstraint([
    Sketcher.Constraint("Horizontal", 0),
    Sketcher.Constraint("Vertical", 2),
    Sketcher.Constraint("Horizontal", 4),
    Sketcher.Constraint("Vertical", 6),
    Sketcher.Constraint("Perpendicular", 1, 3),
    Sketcher.Constraint("Perpendicular", 3, 5),
    Sketcher.Constraint("Perpendicular", 5, 7),
    Sketcher.Constraint("Horizontal", 2, 2, 5, 2),
    Sketcher.Constraint("Horizontal", 1, 2, 6, 2),
    Sketcher.Constraint("Vertical", 0, 2, 3, 2),
    Sketcher.Constraint("Vertical", 4, 2, 7, 2),
    Sketcher.Constraint("DistanceX", 1, 2, 0, 2, 4.0),
    Sketcher.Constraint("DistanceX", 0, 2, 0, 1, 57.0),
    Sketcher.Constraint("DistanceY", 2, 1, 2, 2, 19.0),
    Sketcher.Constraint("DistanceX", -1, 1, 0, 2, 21.5),
    Sketcher.Constraint("DistanceY", 0, 2, -1, 1, 147.7),
])
sketch5.setExpression("Constraints[20]", "Params.sketch5_width")
sketch5.setExpression("Constraints[21]", "Params.sketch5_height")
pocket3 = doc.addObject("PartDesign::Pocket", "Pocket002")
body.addObject(pocket3)
pocket3.Profile = sketch5
pocket3.Type = "ThroughAll"
pocket3.Reversed = True
doc.recompute()

chamfer = doc.addObject("PartDesign::Chamfer", "Chamfer")
body.addObject(chamfer)
chamfer.Base = (pocket3, edges_at(pocket3, [
    (100, 3.25, 0),
    (0, 3.25, 0),
    (100, 3.25, -95.7),
    (90.5, 3.25, -187.7),
    (58.5, 3.25, -187.7),
    (58.5, 3.25, -155.7),
    (9.5, 3.25, -155.7),
    (0, 3.25, -95.7),
]))
chamfer.setExpression("Size", "Params.chamfer_size")
doc.recompute()

chamfer2 = doc.addObject("PartDesign::Chamfer", "Chamfer001")
body.addObject(chamfer2)
chamfer2.Base = (chamfer, edges_at(chamfer, [(9.5, 3.25, -95.7), (90.5, 3.25, -95.7)]))
chamfer2.setExpression("Size", "Params.chamfer2_size")

sketch6 = doc.addObject("Sketcher::SketchObject", "Sketch005")
body.addObject(sketch6)
sketch6.AttachmentSupport = (doc.XZ_Plane, [""])
sketch6.MapMode = "FlatFace"
sketch6.AttachmentOffset = App.Placement(V(0, 0, -6.5), App.Rotation())
sketch6.addGeometry([
    Part.Circle(V(37.5, -11.8, 0), V(0, 0, 1), 2.2),
    Part.Circle(V(62.5, -11.8, 0), V(0, 0, 1), 2.2),
], False)
sketch6.addConstraint([
    Sketcher.Constraint("Equal", 0, 1),
    Sketcher.Constraint("Horizontal", 0, 3, 1, 3),
    Sketcher.Constraint("Diameter", 0, 4.5),
    Sketcher.Constraint("DistanceX", 0, 3, 1, 3, 25.0),
    Sketcher.Constraint("DistanceY", 0, 3, -1, 1, 11.75),
    Sketcher.Constraint("DistanceX", -1, 1, 0, 3, 37.5),
])
sketch6.setExpression("Constraints[2]", "Params.sketch6_diameter")
pocket4 = doc.addObject("PartDesign::Pocket", "Pocket003")
body.addObject(pocket4)
pocket4.Profile = sketch6
pocket4.Type = "ThroughAll"
pocket4.Reversed = True

sketch7 = doc.addObject("Sketcher::SketchObject", "Sketch006")
body.addObject(sketch7)
sketch7.AttachmentSupport = (doc.XZ_Plane, [""])
sketch7.MapMode = "FlatFace"
sketch7.AttachmentOffset = App.Placement(V(0, 0, -6.5), App.Rotation())
sketch7.addGeometry([
    Part.Circle(V(5, -81.8, 0), V(0, 0, 1), 2.2),
    Part.Circle(V(95, -81.8, 0), V(0, 0, 1), 2.2),
    Part.Circle(V(95, -8.2, 0), V(0, 0, 1), 2.2),
    Part.Circle(V(5, -8.2, 0), V(0, 0, 1), 2.2),
], False)
sketch7.addConstraint([
    Sketcher.Constraint("Equal", 0, 1),
    Sketcher.Constraint("Equal", 1, 2),
    Sketcher.Constraint("Equal", 2, 3),
    Sketcher.Constraint("Horizontal", 0, 3, 1, 3),
    Sketcher.Constraint("Horizontal", 2, 3, 3, 3),
    Sketcher.Constraint("Vertical", 1, 3, 2, 3),
    Sketcher.Constraint("Vertical", 0, 3, 3, 3),
    Sketcher.Constraint("Diameter", 0, 4.5),
    Sketcher.Constraint("DistanceX", -1, 1, 0, 3, 5.0),
    Sketcher.Constraint("DistanceY", 2, 3, -1, 1, 8.25),
    Sketcher.Constraint("DistanceX", -1, 1, 1, 3, 95.0),
    Sketcher.Constraint("DistanceY", 1, 3, 2, 3, 73.5),
])
sketch7.setExpression("Constraints[7]", "Params.sketch7_diameter")
pocket5 = doc.addObject("PartDesign::Pocket", "Pocket004")
body.addObject(pocket5)
pocket5.Profile = sketch7
pocket5.Type = "ThroughAll"
pocket5.Reversed = True

sketch8 = doc.addObject("Sketcher::SketchObject", "Sketch007")
body.addObject(sketch8)
sketch8.AttachmentSupport = (doc.XZ_Plane, [""])
sketch8.MapMode = "FlatFace"
sketch8.AttachmentOffset = App.Placement(V(0, 0, -6.5), App.Rotation())
sketch8.addGeometry(Part.Circle(V(50, -63.8, 0), V(0, 0, 1), 2.2), False)
add_polygon(sketch8, [(53.2, -86.8), (46.8, -86.8), (46.8, -78.8), (53.2, -78.8)])
sketch8.addConstraint([
    Sketcher.Constraint("Horizontal", 1),
    Sketcher.Constraint("Vertical", 2),
    Sketcher.Constraint("Horizontal", 3),
    Sketcher.Constraint("Vertical", 4),
    Sketcher.Constraint("Diameter", 0, 4.5),
    Sketcher.Constraint("DistanceY", 2, 1, 2, 2, 8.0),
    Sketcher.Constraint("DistanceX", 1, 2, 1, 1, 6.5),
    Sketcher.Constraint("DistanceY", 2, 2, 0, 3, 15.0),
    Sketcher.Constraint("DistanceX", -1, 1, 0, 3, 50.0),
    Sketcher.Constraint("DistanceY", 0, 3, -1, 1, 63.75),
    Sketcher.Constraint("DistanceX", -1, 1, 1, 2, 46.75),
])
sketch8.setExpression("Constraints[8]", "Params.sketch8_diameter")
sketch8.setExpression("Constraints[9]", "Params.sketch8_height")
sketch8.setExpression("Constraints[10]", "Params.sketch8_width")
pocket6 = doc.addObject("PartDesign::Pocket", "Pocket005")
body.addObject(pocket6)
pocket6.Profile = sketch8
pocket6.Type = "ThroughAll"
pocket6.Reversed = True

doc.recompute()
